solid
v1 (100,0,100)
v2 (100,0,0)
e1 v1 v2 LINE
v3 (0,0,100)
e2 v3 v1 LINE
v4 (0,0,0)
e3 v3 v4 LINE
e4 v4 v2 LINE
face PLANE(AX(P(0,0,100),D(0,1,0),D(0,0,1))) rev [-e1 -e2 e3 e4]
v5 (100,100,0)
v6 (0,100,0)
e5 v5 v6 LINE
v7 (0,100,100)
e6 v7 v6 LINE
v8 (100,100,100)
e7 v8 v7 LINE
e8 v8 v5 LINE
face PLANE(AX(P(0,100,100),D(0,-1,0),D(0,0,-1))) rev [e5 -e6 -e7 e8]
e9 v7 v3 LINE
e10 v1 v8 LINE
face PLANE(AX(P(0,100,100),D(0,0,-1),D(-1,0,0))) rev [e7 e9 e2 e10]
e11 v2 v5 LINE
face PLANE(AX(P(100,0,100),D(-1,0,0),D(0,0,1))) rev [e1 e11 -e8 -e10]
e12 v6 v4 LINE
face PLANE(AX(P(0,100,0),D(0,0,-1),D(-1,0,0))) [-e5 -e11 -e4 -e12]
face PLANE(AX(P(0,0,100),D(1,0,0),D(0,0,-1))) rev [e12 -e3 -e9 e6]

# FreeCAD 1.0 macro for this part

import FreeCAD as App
import Part
import Sketcher

V = App.Vector


def add_polygon(sketch, points):
    """Adds a closed chain of lines whose ends are joined by coincident constraints."""
    first, n = sketch.GeometryCount, len(points)
    for a, b in zip(points, points[1:] + points[:1]):
        sketch.addGeometry(Part.LineSegment(App.Vector(*a, 0), App.Vector(*b, 0)), False)
    for i in range(n):
        sketch.addConstraint(Sketcher.Constraint("Coincident", first + i, 2, first + (i + 1) % n, 1))

doc = App.newDocument("Part")
body = doc.addObject("PartDesign::Body", "Body")

# Sketch on XY plane
sketch1 = body.newObject("Sketcher::SketchObject", "Sketch")
sketch1.AttachmentSupport = (doc.getObject("XY_Plane"), [""])
sketch1.MapMode = "FlatFace"
add_polygon(sketch1, [(0, 100), (0, 0), (100, 0), (100, 100)])  # lines 0-3
sketch1.addConstraint(Sketcher.Constraint("Vertical", 0))
sketch1.addConstraint(Sketcher.Constraint("Horizontal", 1))
sketch1.addConstraint(Sketcher.Constraint("Vertical", 2))
sketch1.addConstraint(Sketcher.Constraint("Horizontal", 3))
sketch1.addConstraint(Sketcher.Constraint("Coincident", 0, 2, -1, 1))
sketch1.addConstraint(Sketcher.Constraint("Equal", 3, 0))
sketch1.addConstraint(Sketcher.Constraint("DistanceX", 1, 1, 1, 2, 100.0))
pad1 = body.newObject("PartDesign::Pad", "Pad")
pad1.Profile = sketch1
pad1.Length = 100

doc.recompute()
